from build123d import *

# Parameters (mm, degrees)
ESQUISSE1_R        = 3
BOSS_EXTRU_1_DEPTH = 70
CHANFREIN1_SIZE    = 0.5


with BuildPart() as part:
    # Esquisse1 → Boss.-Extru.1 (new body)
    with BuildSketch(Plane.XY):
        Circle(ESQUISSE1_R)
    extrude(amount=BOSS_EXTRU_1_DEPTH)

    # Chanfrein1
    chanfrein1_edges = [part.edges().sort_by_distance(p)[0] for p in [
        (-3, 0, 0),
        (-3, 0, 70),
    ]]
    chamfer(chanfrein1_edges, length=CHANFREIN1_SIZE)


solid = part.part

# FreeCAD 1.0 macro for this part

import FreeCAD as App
import Part
import Sketcher


def edges_at(feature, points):
    """Names of the edges that pass closest to the given points."""
    edges = feature.Shape.Edges
    near = lambda p: min(range(len(edges)), key=lambda i: edges[i].distToShape(Part.Vertex(*p))[0])
    return sorted({f"Edge{near(p) + 1}" for p in points})

doc = App.newDocument("Part")
body = doc.addObject("PartDesign::Body", "Body")

# Sketch on XY plane
sketch1 = body.newObject("Sketcher::SketchObject", "Sketch")
sketch1.AttachmentSupport = (doc.getObject("XY_Plane"), [""])
sketch1.MapMode = "FlatFace"
sketch1.addGeometry(Part.Circle(App.Vector(0, 0, 0), App.Vector(0, 0, 1), 3), False)
sketch1.addConstraint([
    Sketcher.Constraint("Coincident", 0, 3, -1, 1),
    Sketcher.Constraint("Diameter", 0, 6.0),
])
pad1 = body.newObject("PartDesign::Pad", "Pad")
pad1.Profile = sketch1
pad1.Length = 70
doc.recompute()

chamfer = body.newObject("PartDesign::Chamfer", "Chamfer")
chamfer.Base = (pad1, edges_at(pad1, [(-3, 0, 0), (-3, 0, 70)]))
chamfer.Size = 0.5

doc.recompute()
